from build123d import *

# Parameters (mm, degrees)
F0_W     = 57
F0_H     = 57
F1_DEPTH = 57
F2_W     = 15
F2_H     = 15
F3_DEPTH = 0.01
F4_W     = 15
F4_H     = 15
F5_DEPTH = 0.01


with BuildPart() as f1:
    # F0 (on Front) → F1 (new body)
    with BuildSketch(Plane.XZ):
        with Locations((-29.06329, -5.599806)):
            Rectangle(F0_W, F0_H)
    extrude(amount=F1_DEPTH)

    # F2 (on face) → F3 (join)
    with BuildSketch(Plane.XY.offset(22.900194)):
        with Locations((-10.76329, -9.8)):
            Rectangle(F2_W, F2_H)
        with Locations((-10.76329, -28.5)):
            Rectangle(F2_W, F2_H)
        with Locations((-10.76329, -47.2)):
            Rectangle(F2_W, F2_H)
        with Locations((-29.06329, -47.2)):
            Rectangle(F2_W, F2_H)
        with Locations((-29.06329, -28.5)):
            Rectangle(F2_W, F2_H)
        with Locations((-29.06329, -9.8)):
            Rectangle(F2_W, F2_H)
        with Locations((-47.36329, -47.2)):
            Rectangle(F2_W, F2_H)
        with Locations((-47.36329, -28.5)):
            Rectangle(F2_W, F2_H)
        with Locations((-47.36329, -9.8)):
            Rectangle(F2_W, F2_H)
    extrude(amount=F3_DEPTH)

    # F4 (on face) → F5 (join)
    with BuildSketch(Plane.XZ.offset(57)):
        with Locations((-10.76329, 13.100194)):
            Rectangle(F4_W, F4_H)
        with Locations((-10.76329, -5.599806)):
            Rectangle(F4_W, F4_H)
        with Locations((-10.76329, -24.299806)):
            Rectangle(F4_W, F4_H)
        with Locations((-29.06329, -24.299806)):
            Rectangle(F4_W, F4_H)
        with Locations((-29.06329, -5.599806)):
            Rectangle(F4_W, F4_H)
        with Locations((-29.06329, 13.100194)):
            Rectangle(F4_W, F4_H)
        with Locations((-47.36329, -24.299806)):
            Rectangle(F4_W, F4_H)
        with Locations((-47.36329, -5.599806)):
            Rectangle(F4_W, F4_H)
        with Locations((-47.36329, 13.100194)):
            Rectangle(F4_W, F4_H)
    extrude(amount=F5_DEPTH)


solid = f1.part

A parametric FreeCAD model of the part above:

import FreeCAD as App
import Part
import Sketcher
from FreeCAD import Vector
Q = App.Units.Quantity


def add_polygon(sketch, points):
    """Adds a closed chain of lines whose ends are joined by coincident constraints."""
    first, n = sketch.GeometryCount, len(points)
    for a, b in zip(points, points[1:] + points[:1]):
        sketch.addGeometry(Part.LineSegment(App.Vector(*a, 0), App.Vector(*b, 0)), False)
    for i in range(n):
        sketch.addConstraint(Sketcher.Constraint("Coincident", first + i, 2, first + (i + 1) % n, 1))

doc = App.newDocument("Part")
body = doc.addObject("PartDesign::Body", "Body")

sketch1 = body.newObject("Sketcher::SketchObject", "Sketch")
sketch1.AttachmentSupport = (doc.getObject("XZ_Plane"), [""])
sketch1.MapMode = "FlatFace"
add_polygon(sketch1, [(-58, 23), (-58, -34), (-1, -34), (-1, 23)])
sketch1.addConstraint(Sketcher.Constraint("Vertical", 0))
sketch1.addConstraint(Sketcher.Constraint("Horizontal", 1))
sketch1.addConstraint(Sketcher.Constraint("Vertical", 2))
sketch1.addConstraint(Sketcher.Constraint("Horizontal", 3))
sketch1.addConstraint(Sketcher.Constraint("Equal", 3, 0))
sketch1.addConstraint(Sketcher.Constraint("DistanceX", 1, 1, 1, 2, Q("57 mm")))
sketch1.addConstraint(Sketcher.Constraint("DistanceX", 0, 2, -1, 1, Q("57.56329 mm")))
sketch1.addConstraint(Sketcher.Constraint("DistanceY", 0, 2, -1, 1, Q("34.099806 mm")))
pad1 = body.newObject("PartDesign::Pad", "Pad")
pad1.Profile = sketch1
pad1.Length = 57

sketch2 = body.newObject("Sketcher::SketchObject", "Sketch001")
sketch2.AttachmentSupport = (doc.getObject("XY_Plane"), [""])
sketch2.MapMode = "FlatFace"
sketch2.AttachmentOffset = App.Placement(Vector(0, 0, 22.900194), App.Rotation())
add_polygon(sketch2, [(-18, -2), (-18, -17), (-3, -17), (-3, -2)])
add_polygon(sketch2, [(-18, -21), (-18, -36), (-3, -36), (-3, -21)])
add_polygon(sketch2, [(-18, -40), (-18, -55), (-3, -55), (-3, -40)])
add_polygon(sketch2, [(-37, -40), (-37, -55), (-22, -55), (-22, -40)])
add_polygon(sketch2, [(-37, -21), (-37, -36), (-22, -36), (-22, -21)])
add_polygon(sketch2, [(-37, -2), (-37, -17), (-22, -17), (-22, -2)])
add_polygon(sketch2, [(-55, -40), (-55, -55), (-40, -55), (-40, -40)])
add_polygon(sketch2, [(-55, -21), (-55, -36), (-40, -36), (-40, -21)])
add_polygon(sketch2, [(-55, -2), (-55, -17), (-40, -17), (-40, -2)])
sketch2.addConstraint(Sketcher.Constraint("Vertical", 0))
sketch2.addConstraint(Sketcher.Constraint("Horizontal", 1))
sketch2.addConstraint(Sketcher.Constraint("Vertical", 2))
sketch2.addConstraint(Sketcher.Constraint("Horizontal", 3))
sketch2.addConstraint(Sketcher.Constraint("Vertical", 4))
sketch2.addConstraint(Sketcher.Constraint("Horizontal", 5))
sketch2.addConstraint(Sketcher.Constraint("Vertical", 6))
sketch2.addConstraint(Sketcher.Constraint("Horizontal", 7))
sketch2.addConstraint(Sketcher.Constraint("Vertical", 8))
sketch2.addConstraint(Sketcher.Constraint("Horizontal", 9))
sketch2.addConstraint(Sketcher.Constraint("Vertical", 10))
sketch2.addConstraint(Sketcher.Constraint("Horizontal", 11))
sketch2.addConstraint(Sketcher.Constraint("Vertical", 12))
sketch2.addConstraint(Sketcher.Constraint("Horizontal", 13))
sketch2.addConstraint(Sketcher.Constraint("Vertical", 14))
sketch2.addConstraint(Sketcher.Constraint("Horizontal", 15))
sketch2.addConstraint(Sketcher.Constraint("Vertical", 16))
sketch2.addConstraint(Sketcher.Constraint("Horizontal", 17))
sketch2.addConstraint(Sketcher.Constraint("Vertical", 18))
sketch2.addConstraint(Sketcher.Constraint("Horizontal", 19))
sketch2.addConstraint(Sketcher.Constraint("Vertical", 20))
sketch2.addConstraint(Sketcher.Constraint("Horizontal", 21))
sketch2.addConstraint(Sketcher.Constraint("Vertical", 22))
sketch2.addConstraint(Sketcher.Constraint("Horizontal", 23))
sketch2.addConstraint(Sketcher.Constraint("Vertical", 24))
sketch2.addConstraint(Sketcher.Constraint("Horizontal", 25))
sketch2.addConstraint(Sketcher.Constraint("Vertical", 26))
sketch2.addConstraint(Sketcher.Constraint("Horizontal", 27))
sketch2.addConstraint(Sketcher.Constraint("Vertical", 28))
sketch2.addConstraint(Sketcher.Constraint("Horizontal", 29))
sketch2.addConstraint(Sketcher.Constraint("Vertical", 30))
sketch2.addConstraint(Sketcher.Constraint("Horizontal", 31))
sketch2.addConstraint(Sketcher.Constraint("Vertical", 32))
sketch2.addConstraint(Sketcher.Constraint("Horizontal", 33))
sketch2.addConstraint(Sketcher.Constraint("Vertical", 34))
sketch2.addConstraint(Sketcher.Constraint("Horizontal", 35))
sketch2.addConstraint(Sketcher.Constraint("Horizontal", 9, 2, 12, 2))
sketch2.addConstraint(Sketcher.Constraint("Horizontal", 11, 2, 14, 2))
sketch2.addConstraint(Sketcher.Constraint("Horizontal", 5, 2, 16, 2))
sketch2.addConstraint(Sketcher.Constraint("Horizontal", 7, 2, 18, 2))
sketch2.addConstraint(Sketcher.Constraint("Horizontal", 1, 2, 20, 2))
sketch2.addConstraint(Sketcher.Constraint("Horizontal", 3, 2, 22, 2))
sketch2.addConstraint(Sketcher.Constraint("Horizontal", 13, 2, 24, 2))
sketch2.addConstraint(Sketcher.Constraint("Horizontal", 15, 2, 26, 2))
sketch2.addConstraint(Sketcher.Constraint("Horizontal", 17, 2, 28, 2))
sketch2.addConstraint(Sketcher.Constraint("Horizontal", 19, 2, 30, 2))
sketch2.addConstraint(Sketcher.Constraint("Horizontal", 21, 2, 32, 2))
sketch2.addConstraint(Sketcher.Constraint("Horizontal", 23, 2, 34, 2))
sketch2.addConstraint(Sketcher.Constraint("Vertical", 3, 2, 4, 2))
sketch2.addConstraint(Sketcher.Constraint("Vertical", 2, 2, 5, 2))
sketch2.addConstraint(Sketcher.Constraint("Vertical", 7, 2, 8, 2))
sketch2.addConstraint(Sketcher.Constraint("Vertical", 6, 2, 9, 2))
sketch2.addConstraint(Sketcher.Constraint("Vertical", 15, 2, 16, 2))
sketch2.addConstraint(Sketcher.Constraint("Vertical", 14, 2, 17, 2))
sketch2.addConstraint(Sketcher.Constraint("Vertical", 19, 2, 20, 2))
sketch2.addConstraint(Sketcher.Constraint("Vertical", 18, 2, 21, 2))
sketch2.addConstraint(Sketcher.Constraint("Vertical", 27, 2, 28, 2))
sketch2.addConstraint(Sketcher.Constraint("Vertical", 26, 2, 29, 2))
sketch2.addConstraint(Sketcher.Constraint("Vertical", 31, 2, 32, 2))
sketch2.addConstraint(Sketcher.Constraint("Vertical", 30, 2, 33, 2))
sketch2.addConstraint(Sketcher.Constraint("Equal", 11, 13))
sketch2.addConstraint(Sketcher.Constraint("Equal", 23, 25))
sketch2.addConstraint(Sketcher.Constraint("Equal", 35, 0))
sketch2.addConstraint(Sketcher.Constraint("Equal", 2, 4))
sketch2.addConstraint(Sketcher.Constraint("Equal", 6, 8))
sketch2.addConstraint(Sketcher.Constraint("DistanceX", 1, 1, 1, 2, Q("15 mm")))
sketch2.addConstraint(Sketcher.Constraint("DistanceY", 4, 2, -1, 1, Q("36 mm")))
sketch2.addConstraint(Sketcher.Constraint("DistanceY", 0, 2, -1, 1, Q("17.3 mm")))
sketch2.addConstraint(Sketcher.Constraint("DistanceY", 8, 2, -1, 1, Q("54.7 mm")))
sketch2.addConstraint(Sketcher.Constraint("DistanceX", 12, 2, 8, 2, Q("18.3 mm")))
sketch2.addConstraint(Sketcher.Constraint("DistanceX", 24, 2, 12, 2, Q("18.3 mm")))
sketch2.addConstraint(Sketcher.Constraint("DistanceX", 0, 2, -1, 1, Q("18.26329 mm")))
pad2 = body.newObject("PartDesign::Pad", "Pad001")
pad2.Profile = sketch2
pad2.Length = 0.01

sketch3 = body.newObject("Sketcher::SketchObject", "Sketch002")
sketch3.AttachmentSupport = (doc.getObject("XZ_Plane"), [""])
sketch3.MapMode = "FlatFace"
sketch3.AttachmentOffset = App.Placement(Vector(0, 0, 57), App.Rotation())
add_polygon(sketch3, [(-18, 21), (-18, 6), (-3, 6), (-3, 21)])
add_polygon(sketch3, [(-18, 2), (-18, -13), (-3, -13), (-3, 2)])
add_polygon(sketch3, [(-18, -17), (-18, -32), (-3, -32), (-3, -17)])
add_polygon(sketch3, [(-37, -17), (-37, -32), (-22, -32), (-22, -17)])
add_polygon(sketch3, [(-37, 2), (-37, -13), (-22, -13), (-22, 2)])
add_polygon(sketch3, [(-37, 21), (-37, 6), (-22, 6), (-22, 21)])
add_polygon(sketch3, [(-55, -17), (-55, -32), (-40, -32), (-40, -17)])
add_polygon(sketch3, [(-55, 2), (-55, -13), (-40, -13), (-40, 2)])
add_polygon(sketch3, [(-55, 21), (-55, 6), (-40, 6), (-40, 21)])
sketch3.addConstraint(Sketcher.Constraint("Vertical", 0))
sketch3.addConstraint(Sketcher.Constraint("Horizontal", 1))
sketch3.addConstraint(Sketcher.Constraint("Vertical", 2))
sketch3.addConstraint(Sketcher.Constraint("Horizontal", 3))
sketch3.addConstraint(Sketcher.Constraint("Vertical", 4))
sketch3.addConstraint(Sketcher.Constraint("Horizontal", 5))
sketch3.addConstraint(Sketcher.Constraint("Vertical", 6))
sketch3.addConstraint(Sketcher.Constraint("Horizontal", 7))
sketch3.addConstraint(Sketcher.Constraint("Vertical", 8))
sketch3.addConstraint(Sketcher.Constraint("Horizontal", 9))
sketch3.addConstraint(Sketcher.Constraint("Vertical", 10))
sketch3.addConstraint(Sketcher.Constraint("Horizontal", 11))
sketch3.addConstraint(Sketcher.Constraint("Vertical", 12))
sketch3.addConstraint(Sketcher.Constraint("Horizontal", 13))
sketch3.addConstraint(Sketcher.Constraint("Vertical", 14))
sketch3.addConstraint(Sketcher.Constraint("Horizontal", 15))
sketch3.addConstraint(Sketcher.Constraint("Vertical", 16))
sketch3.addConstraint(Sketcher.Constraint("Horizontal", 17))
sketch3.addConstraint(Sketcher.Constraint("Vertical", 18))
sketch3.addConstraint(Sketcher.Constraint("Horizontal", 19))
sketch3.addConstraint(Sketcher.Constraint("Vertical", 20))
sketch3.addConstraint(Sketcher.Constraint("Horizontal", 21))
sketch3.addConstraint(Sketcher.Constraint("Vertical", 22))
sketch3.addConstraint(Sketcher.Constraint("Horizontal", 23))
sketch3.addConstraint(Sketcher.Constraint("Vertical", 24))
sketch3.addConstraint(Sketcher.Constraint("Horizontal", 25))
sketch3.addConstraint(Sketcher.Constraint("Vertical", 26))
sketch3.addConstraint(Sketcher.Constraint("Horizontal", 27))
sketch3.addConstraint(Sketcher.Constraint("Vertical", 28))
sketch3.addConstraint(Sketcher.Constraint("Horizontal", 29))
sketch3.addConstraint(Sketcher.Constraint("Vertical", 30))
sketch3.addConstraint(Sketcher.Constraint("Horizontal", 31))
sketch3.addConstraint(Sketcher.Constraint("Vertical", 32))
sketch3.addConstraint(Sketcher.Constraint("Horizontal", 33))
sketch3.addConstraint(Sketcher.Constraint("Vertical", 34))
sketch3.addConstraint(Sketcher.Constraint("Horizontal", 35))
sketch3.addConstraint(Sketcher.Constraint("Horizontal", 9, 2, 12, 2))
sketch3.addConstraint(Sketcher.Constraint("Horizontal", 11, 2, 14, 2))
sketch3.addConstraint(Sketcher.Constraint("Horizontal", 5, 2, 16, 2))
sketch3.addConstraint(Sketcher.Constraint("Horizontal", 7, 2, 18, 2))
sketch3.addConstraint(Sketcher.Constraint("Horizontal", 1, 2, 20, 2))
sketch3.addConstraint(Sketcher.Constraint("Horizontal", 3, 2, 22, 2))
sketch3.addConstraint(Sketcher.Constraint("Horizontal", 13, 2, 24, 2))
sketch3.addConstraint(Sketcher.Constraint("Horizontal", 15, 2, 26, 2))
sketch3.addConstraint(Sketcher.Constraint("Horizontal", 17, 2, 28, 2))
sketch3.addConstraint(Sketcher.Constraint("Horizontal", 19, 2, 30, 2))
sketch3.addConstraint(Sketcher.Constraint("Horizontal", 21, 2, 32, 2))
sketch3.addConstraint(Sketcher.Constraint("Horizontal", 23, 2, 34, 2))
sketch3.addConstraint(Sketcher.Constraint("Vertical", 3, 2, 4, 2))
sketch3.addConstraint(Sketcher.Constraint("Vertical", 2, 2, 5, 2))
sketch3.addConstraint(Sketcher.Constraint("Vertical", 7, 2, 8, 2))
sketch3.addConstraint(Sketcher.Constraint("Vertical", 6, 2, 9, 2))
sketch3.addConstraint(Sketcher.Constraint("Vertical", 15, 2, 16, 2))
sketch3.addConstraint(Sketcher.Constraint("Vertical", 14, 2, 17, 2))
sketch3.addConstraint(Sketcher.Constraint("Vertical", 19, 2, 20, 2))
sketch3.addConstraint(Sketcher.Constraint("Vertical", 18, 2, 21, 2))
sketch3.addConstraint(Sketcher.Constraint("Vertical", 27, 2, 28, 2))
sketch3.addConstraint(Sketcher.Constraint("Vertical", 26, 2, 29, 2))
sketch3.addConstraint(Sketcher.Constraint("Vertical", 31, 2, 32, 2))
sketch3.addConstraint(Sketcher.Constraint("Vertical", 30, 2, 33, 2))
sketch3.addConstraint(Sketcher.Constraint("Equal", 11, 13))
sketch3.addConstraint(Sketcher.Constraint("Equal", 23, 25))
sketch3.addConstraint(Sketcher.Constraint("Equal", 35, 0))
sketch3.addConstraint(Sketcher.Constraint("Equal", 2, 4))
sketch3.addConstraint(Sketcher.Constraint("Equal", 6, 8))
sketch3.addConstraint(Sketcher.Constraint("DistanceX", 1, 1, 1, 2, Q("15 mm")))
sketch3.addConstraint(Sketcher.Constraint("DistanceY", 4, 2, 0, 2, Q("18.7 mm")))
sketch3.addConstraint(Sketcher.Constraint("DistanceY", 8, 2, 4, 2, Q("18.7 mm")))
sketch3.addConstraint(Sketcher.Constraint("DistanceX", 12, 2, 8, 2, Q("18.3 mm")))
sketch3.addConstraint(Sketcher.Constraint("DistanceX", 24, 2, 12, 2, Q("18.3 mm")))
sketch3.addConstraint(Sketcher.Constraint("DistanceX", 0, 2, -1, 1, Q("18.26329 mm")))
sketch3.addConstraint(Sketcher.Constraint("DistanceY", -1, 1, 0, 2, Q("5.600194 mm")))
pad3 = body.newObject("PartDesign::Pad", "Pad002")
pad3.Profile = sketch3
pad3.Length = 0.01

doc.recompute()
